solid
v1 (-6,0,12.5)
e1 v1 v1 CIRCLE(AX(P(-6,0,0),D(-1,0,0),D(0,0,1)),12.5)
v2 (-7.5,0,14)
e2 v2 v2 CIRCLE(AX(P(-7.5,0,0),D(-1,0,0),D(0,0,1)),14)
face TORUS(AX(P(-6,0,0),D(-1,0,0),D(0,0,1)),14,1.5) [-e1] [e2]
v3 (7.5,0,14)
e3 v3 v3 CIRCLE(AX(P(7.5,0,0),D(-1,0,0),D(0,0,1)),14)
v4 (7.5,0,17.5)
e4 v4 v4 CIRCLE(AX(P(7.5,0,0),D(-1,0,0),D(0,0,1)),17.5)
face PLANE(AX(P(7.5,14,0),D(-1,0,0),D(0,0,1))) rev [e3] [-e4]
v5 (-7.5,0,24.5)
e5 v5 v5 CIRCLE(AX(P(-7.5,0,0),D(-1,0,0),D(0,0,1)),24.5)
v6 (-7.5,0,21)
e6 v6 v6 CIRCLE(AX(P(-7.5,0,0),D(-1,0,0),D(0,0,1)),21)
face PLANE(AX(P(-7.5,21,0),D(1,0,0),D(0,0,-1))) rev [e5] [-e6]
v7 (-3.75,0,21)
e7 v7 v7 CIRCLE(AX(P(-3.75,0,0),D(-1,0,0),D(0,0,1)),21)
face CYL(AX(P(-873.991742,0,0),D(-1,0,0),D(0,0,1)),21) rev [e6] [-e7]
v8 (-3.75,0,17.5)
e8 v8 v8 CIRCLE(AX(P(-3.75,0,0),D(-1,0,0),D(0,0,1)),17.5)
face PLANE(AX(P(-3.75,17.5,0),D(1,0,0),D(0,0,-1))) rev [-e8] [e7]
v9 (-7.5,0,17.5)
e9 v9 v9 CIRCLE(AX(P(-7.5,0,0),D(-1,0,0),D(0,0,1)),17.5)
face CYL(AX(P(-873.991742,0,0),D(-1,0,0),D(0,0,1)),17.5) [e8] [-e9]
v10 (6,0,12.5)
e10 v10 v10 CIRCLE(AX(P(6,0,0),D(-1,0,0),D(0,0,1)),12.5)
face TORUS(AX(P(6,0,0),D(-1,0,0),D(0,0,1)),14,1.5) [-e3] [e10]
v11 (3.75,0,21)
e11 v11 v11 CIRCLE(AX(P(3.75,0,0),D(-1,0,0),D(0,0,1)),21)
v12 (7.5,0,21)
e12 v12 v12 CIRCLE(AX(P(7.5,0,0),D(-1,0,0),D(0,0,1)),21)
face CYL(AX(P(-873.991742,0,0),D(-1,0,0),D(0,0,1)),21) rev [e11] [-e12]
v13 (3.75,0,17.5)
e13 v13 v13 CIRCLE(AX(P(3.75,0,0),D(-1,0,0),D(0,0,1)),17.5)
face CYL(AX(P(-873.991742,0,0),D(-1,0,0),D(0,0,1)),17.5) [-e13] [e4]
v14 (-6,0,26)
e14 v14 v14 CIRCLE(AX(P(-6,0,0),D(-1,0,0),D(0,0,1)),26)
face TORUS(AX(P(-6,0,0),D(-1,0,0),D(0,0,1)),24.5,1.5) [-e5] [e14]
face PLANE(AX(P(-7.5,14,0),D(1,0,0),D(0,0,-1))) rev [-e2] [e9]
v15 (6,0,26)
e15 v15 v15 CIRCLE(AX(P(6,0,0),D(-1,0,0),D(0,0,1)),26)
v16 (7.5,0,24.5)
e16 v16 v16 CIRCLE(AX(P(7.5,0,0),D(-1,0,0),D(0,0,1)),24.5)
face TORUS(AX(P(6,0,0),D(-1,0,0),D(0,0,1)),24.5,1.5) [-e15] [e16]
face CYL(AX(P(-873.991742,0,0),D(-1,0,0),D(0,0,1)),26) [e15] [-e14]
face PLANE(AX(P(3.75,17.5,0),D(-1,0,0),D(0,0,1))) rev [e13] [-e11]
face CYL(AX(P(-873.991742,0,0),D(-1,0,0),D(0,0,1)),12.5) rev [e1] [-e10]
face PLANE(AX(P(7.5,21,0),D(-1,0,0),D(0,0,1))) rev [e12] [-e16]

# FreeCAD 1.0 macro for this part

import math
import FreeCAD as App
import Part
import Sketcher
Q = App.Units.Quantity

doc = App.newDocument("Part")
body = doc.addObject("PartDesign::Body", "Body")

sketch1 = body.newObject("Sketcher::SketchObject", "Sketch")
sketch1.AttachmentSupport = (doc.getObject("XY_Plane"), [""])
sketch1.MapMode = "FlatFace"
sketch1.addGeometry([
    Part.LineSegment(App.Vector(-6, 12.5, 0), App.Vector(6, 12.5, 0)),
    Part.ArcOfCircle(Part.Circle(App.Vector(6, 14, 0), App.Vector(0, 0, 1), 1.5), math.radians(-90), math.radians(0)),
    Part.LineSegment(App.Vector(7.5, 14, 0), App.Vector(7.5, 17.5, 0)),
    Part.LineSegment(App.Vector(7.5, 17.5, 0), App.Vector(3.8, 17.5, 0)),
    Part.LineSegment(App.Vector(3.8, 17.5, 0), App.Vector(3.8, 21, 0)),
    Part.LineSegment(App.Vector(3.8, 21, 0), App.Vector(7.5, 21, 0)),
    Part.LineSegment(App.Vector(7.5, 21, 0), App.Vector(7.5, 24.5, 0)),
    Part.ArcOfCircle(Part.Circle(App.Vector(6, 24.5, 0), App.Vector(0, 0, 1), 1.5), math.radians(0), math.radians(90)),
    Part.LineSegment(App.Vector(6, 26, 0), App.Vector(-6, 26, 0)),
    Part.ArcOfCircle(Part.Circle(App.Vector(-6, 24.5, 0), App.Vector(0, 0, 1), 1.5), math.radians(90), math.radians(180)),
    Part.LineSegment(App.Vector(-7.5, 24.5, 0), App.Vector(-7.5, 21, 0)),
    Part.LineSegment(App.Vector(-7.5, 21, 0), App.Vector(-3.8, 21, 0)),
    Part.LineSegment(App.Vector(-3.8, 21, 0), App.Vector(-3.8, 17.5, 0)),
    Part.LineSegment(App.Vector(-3.8, 17.5, 0), App.Vector(-7.5, 17.5, 0)),
    Part.LineSegment(App.Vector(-7.5, 17.5, 0), App.Vector(-7.5, 14, 0)),
    Part.ArcOfCircle(Part.Circle(App.Vector(-6, 14, 0), App.Vector(0, 0, 1), 1.5), math.radians(180), math.radians(270)),
], False)
sketch1.addConstraint([
    Sketcher.Constraint("Tangent", 0, 2, 1, 1),
    Sketcher.Constraint("Tangent", 1, 2, 2, 1),
    Sketcher.Constraint("Coincident", 2, 2, 3, 1),
    Sketcher.Constraint("Coincident", 3, 2, 4, 1),
    Sketcher.Constraint("Coincident", 4, 2, 5, 1),
    Sketcher.Constraint("Coincident", 5, 2, 6, 1),
    Sketcher.Constraint("Tangent", 6, 2, 7, 1),
    Sketcher.Constraint("Tangent", 7, 2, 8, 1),
    Sketcher.Constraint("Tangent", 8, 2, 9, 1),
    Sketcher.Constraint("Tangent", 9, 2, 10, 1),
    Sketcher.Constraint("Coincident", 10, 2, 11, 1),
    Sketcher.Constraint("Coincident", 11, 2, 12, 1),
    Sketcher.Constraint("Coincident", 12, 2, 13, 1),
    Sketcher.Constraint("Coincident", 13, 2, 14, 1),
    Sketcher.Constraint("Tangent", 14, 2, 15, 1),
    Sketcher.Constraint("Tangent", 15, 2, 0, 1),
    Sketcher.Constraint("Horizontal", 0),
    Sketcher.Constraint("Vertical", 2),
    Sketcher.Constraint("Horizontal", 3),
    Sketcher.Constraint("Vertical", 4),
    Sketcher.Constraint("Horizontal", 5),
    Sketcher.Constraint("Vertical", 6),
    Sketcher.Constraint("Horizontal", 8),
    Sketcher.Constraint("Vertical", 10),
    Sketcher.Constraint("Horizontal", 11),
    Sketcher.Constraint("Vertical", 12),
    Sketcher.Constraint("Horizontal", 13),
    Sketcher.Constraint("Vertical", 14),
    Sketcher.Constraint("Equal", 1, 7),
    Sketcher.Constraint("Equal", 7, 9),
    Sketcher.Constraint("Equal", 9, 15),
    Sketcher.Constraint("Symmetric", 5, 2, 10, 2, -2),
    Sketcher.Constraint("Symmetric", 3, 2, 12, 2, -2),
    Sketcher.Constraint("Vertical", 1, 3, 7, 3),
    Sketcher.Constraint("Vertical", 9, 3, 15, 3),
    Sketcher.Constraint("Equal", 2, 4),
    Sketcher.Constraint("Equal", 4, 6),
    Sketcher.Constraint("Radius", 1, Q("1.5 mm")),
    Sketcher.Constraint("DistanceX", 0, 1, 0, 2, Q("12 mm")),
    Sketcher.Constraint("DistanceY", 2, 1, 2, 2, Q("3.5 mm")),
    Sketcher.Constraint("DistanceY", -1, 1, 1, 3, Q("14 mm")),
    Sketcher.Constraint("DistanceX", 3, 2, 3, 1, Q("3.75 mm")),
])
revolution = body.newObject("PartDesign::Revolution", "Revolution")
revolution.Profile = sketch1
revolution.ReferenceAxis = (sketch1, ["H_Axis"])
revolution.Angle = 360

doc.recompute()
